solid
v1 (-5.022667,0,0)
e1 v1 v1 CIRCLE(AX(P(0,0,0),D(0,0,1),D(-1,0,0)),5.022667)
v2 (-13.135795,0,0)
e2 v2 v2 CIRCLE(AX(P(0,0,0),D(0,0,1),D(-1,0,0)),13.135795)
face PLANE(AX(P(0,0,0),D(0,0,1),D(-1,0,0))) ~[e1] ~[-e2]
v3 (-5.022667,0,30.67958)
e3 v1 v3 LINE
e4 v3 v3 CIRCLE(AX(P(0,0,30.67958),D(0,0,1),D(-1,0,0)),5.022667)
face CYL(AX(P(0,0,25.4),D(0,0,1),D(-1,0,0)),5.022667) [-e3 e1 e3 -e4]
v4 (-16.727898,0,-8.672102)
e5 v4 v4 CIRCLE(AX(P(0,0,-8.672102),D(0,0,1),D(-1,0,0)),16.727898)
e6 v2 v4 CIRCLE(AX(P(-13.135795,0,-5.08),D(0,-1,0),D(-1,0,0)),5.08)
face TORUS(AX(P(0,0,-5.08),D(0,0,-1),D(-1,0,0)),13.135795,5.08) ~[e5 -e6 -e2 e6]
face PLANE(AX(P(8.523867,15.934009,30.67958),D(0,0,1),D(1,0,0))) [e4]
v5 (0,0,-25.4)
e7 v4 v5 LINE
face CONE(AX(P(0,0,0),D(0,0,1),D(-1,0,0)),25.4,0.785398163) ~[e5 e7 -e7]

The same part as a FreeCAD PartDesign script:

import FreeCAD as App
import Part
import Sketcher
from FreeCAD import Vector
Q = App.Units.Quantity


def edges_at(feature, points):
    """Names of the edges that pass closest to the given points."""
    edges = feature.Shape.Edges
    near = lambda p: min(range(len(edges)), key=lambda i: edges[i].distToShape(Part.Vertex(*p))[0])
    return sorted({f"Edge{near(p) + 1}" for p in points})

doc = App.newDocument("Part")
body = doc.addObject("PartDesign::Body", "Body")

sketch1 = body.newObject("Sketcher::SketchObject", "Sketch")
sketch1.AttachmentSupport = (doc.getObject("XZ_Plane"), [""])
sketch1.MapMode = "FlatFace"
sketch1.addGeometry([
    Part.LineSegment(Vector(0, -25, 0), Vector(0, 51, 0)),
    Part.LineSegment(Vector(0, 51, 0), Vector(-5, 51, 0)),
    Part.LineSegment(Vector(-5, 51, 0), Vector(-5, 0, 0)),
    Part.LineSegment(Vector(-5, 0, 0), Vector(-25, 0, 0)),
    Part.LineSegment(Vector(-25, 0, 0), Vector(0, -25, 0)),
], False)
sketch1.addConstraint([
    Sketcher.Constraint("Coincident", 0, 2, 1, 1),
    Sketcher.Constraint("Coincident", 1, 2, 2, 1),
    Sketcher.Constraint("Coincident", 2, 2, 3, 1),
    Sketcher.Constraint("Coincident", 3, 2, 4, 1),
    Sketcher.Constraint("Coincident", 4, 2, 0, 1),
    Sketcher.Constraint("Vertical", 0),
    Sketcher.Constraint("Horizontal", 1),
    Sketcher.Constraint("Vertical", 2),
    Sketcher.Constraint("Horizontal", 3),
    Sketcher.Constraint("PointOnObject", 0, 2, -2),
    Sketcher.Constraint("PointOnObject", 2, 2, -1),
    Sketcher.Constraint("DistanceY", 0, 1, 0, 2, Q("3 in")),
    Sketcher.Constraint("DistanceY", 2, 2, 2, 1, Q("2 in")),
    Sketcher.Constraint("DistanceX", 3, 2, -1, 1, Q("1 in")),
    Sketcher.Constraint("DistanceX", 1, 2, 1, 1, 5.022667),
])
revolution = body.newObject("PartDesign::Revolution", "Revolution")
revolution.Profile = sketch1
revolution.ReferenceAxis = (sketch1, ["V_Axis"])
revolution.Angle = 360
doc.recompute()

fillet = body.newObject("PartDesign::Fillet", "Fillet")
fillet.Base = (revolution, edges_at(revolution, [(25.4, 0, 0)]))
fillet.Radius = Q("0.2 in")

sketch2 = body.newObject("Sketcher::SketchObject", "Sketch001")
sketch2.AttachmentSupport = (doc.getObject("XY_Plane"), [""])
sketch2.MapMode = "FlatFace"
sketch2.AttachmentOffset = App.Placement(Vector(0, 0, 52.32762), App.Rotation())
sketch2.addGeometry([
    Part.LineSegment(Vector(-29, 73, 0), Vector(-29, -41, 0)),
    Part.LineSegment(Vector(-29, -41, 0), Vector(46, -41, 0)),
    Part.LineSegment(Vector(46, -41, 0), Vector(46, 73, 0)),
    Part.LineSegment(Vector(46, 73, 0), Vector(-29, 73, 0)),
], False)
sketch2.addConstraint([
    Sketcher.Constraint("Coincident", 0, 2, 1, 1),
    Sketcher.Constraint("Coincident", 1, 2, 2, 1),
    Sketcher.Constraint("Coincident", 2, 2, 3, 1),
    Sketcher.Constraint("Coincident", 3, 2, 0, 1),
    Sketcher.Constraint("Vertical", 0),
    Sketcher.Constraint("Horizontal", 1),
    Sketcher.Constraint("Vertical", 2),
    Sketcher.Constraint("Horizontal", 3),
    Sketcher.Constraint("DistanceX", 1, 1, 1, 2, 74.588209),
    Sketcher.Constraint("DistanceY", 0, 2, 0, 1, 114.338525),
    Sketcher.Constraint("DistanceX", 0, 2, -1, 1, 28.770238),
    Sketcher.Constraint("DistanceY", -1, 1, 2, 2, 73.103271),
])
pocket1 = body.newObject("PartDesign::Pocket", "Pocket")
pocket1.Profile = sketch2
pocket1.Length = 21.64804

doc.recompute()
